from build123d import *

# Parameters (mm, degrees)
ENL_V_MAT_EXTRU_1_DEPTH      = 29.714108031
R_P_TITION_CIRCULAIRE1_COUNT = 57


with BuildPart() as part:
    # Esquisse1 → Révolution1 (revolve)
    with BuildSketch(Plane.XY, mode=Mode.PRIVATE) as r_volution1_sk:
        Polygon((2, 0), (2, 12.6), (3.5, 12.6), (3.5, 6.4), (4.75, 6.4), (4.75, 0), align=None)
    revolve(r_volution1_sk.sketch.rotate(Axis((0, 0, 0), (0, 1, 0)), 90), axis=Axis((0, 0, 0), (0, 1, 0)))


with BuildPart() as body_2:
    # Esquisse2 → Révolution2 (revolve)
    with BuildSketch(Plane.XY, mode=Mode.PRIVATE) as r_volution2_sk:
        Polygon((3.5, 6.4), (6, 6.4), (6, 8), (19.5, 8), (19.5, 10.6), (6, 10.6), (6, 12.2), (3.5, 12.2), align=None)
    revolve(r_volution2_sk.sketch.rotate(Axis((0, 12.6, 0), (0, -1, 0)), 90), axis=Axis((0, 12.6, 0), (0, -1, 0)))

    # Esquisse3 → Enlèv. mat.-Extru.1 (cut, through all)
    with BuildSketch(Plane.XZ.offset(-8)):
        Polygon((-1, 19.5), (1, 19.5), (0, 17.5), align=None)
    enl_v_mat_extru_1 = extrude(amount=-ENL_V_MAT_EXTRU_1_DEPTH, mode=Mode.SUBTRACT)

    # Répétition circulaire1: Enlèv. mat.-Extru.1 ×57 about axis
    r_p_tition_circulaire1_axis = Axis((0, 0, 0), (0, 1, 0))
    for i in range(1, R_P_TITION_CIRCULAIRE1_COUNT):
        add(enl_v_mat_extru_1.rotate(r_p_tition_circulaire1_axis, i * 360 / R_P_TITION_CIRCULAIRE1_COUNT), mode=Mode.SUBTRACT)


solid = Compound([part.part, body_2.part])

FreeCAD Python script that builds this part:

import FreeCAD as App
import Part
import Sketcher

V = App.Vector


def add_polygon(sketch, points):
    """Adds a closed chain of lines whose ends are joined by coincident constraints."""
    first, n = sketch.GeometryCount, len(points)
    for a, b in zip(points, points[1:] + points[:1]):
        sketch.addGeometry(Part.LineSegment(App.Vector(*a, 0), App.Vector(*b, 0)), False)
    for i in range(n):
        sketch.addConstraint(Sketcher.Constraint("Coincident", first + i, 2, first + (i + 1) % n, 1))

doc = App.newDocument("Part")
body = doc.addObject("PartDesign::Body", "Body")

# Sketch on XY plane
sketch1 = body.newObject("Sketcher::SketchObject", "Sketch")
sketch1.AttachmentSupport = (doc.getObject("XY_Plane"), [""])
sketch1.MapMode = "FlatFace"
add_polygon(sketch1, [(2, 12.6), (2, 0), (4.75, 0), (4.75, 6.4), (3.5, 6.4), (3.5, 12.6)])  # lines 0-5
sketch1.addConstraint([
    Sketcher.Constraint("Vertical", 0),
    Sketcher.Constraint("Horizontal", 1),
    Sketcher.Constraint("Vertical", 2),
    Sketcher.Constraint("Horizontal", 3),
    Sketcher.Constraint("Vertical", 4),
    Sketcher.Constraint("Horizontal", 5),
    Sketcher.Constraint("PointOnObject", 0, 2, -1),
    Sketcher.Constraint("DistanceX", 5, 2, 5, 1, 1.5),
    Sketcher.Constraint("DistanceY", 0, 2, 0, 1, 12.6),
    Sketcher.Constraint("DistanceY", 2, 1, 2, 2, 6.4),
    Sketcher.Constraint("DistanceX", -1, 1, 0, 2, 2.0),
    Sketcher.Constraint("DistanceX", 1, 1, 1, 2, 2.75),
])
revolution = body.newObject("PartDesign::Revolution", "Revolution")
revolution.Profile = sketch1
revolution.ReferenceAxis = (sketch1, ["V_Axis"])
revolution.Angle = 360
body2 = doc.addObject("PartDesign::Body", "Body001")

# Sketch on XY plane
sketch2 = body2.newObject("Sketcher::SketchObject", "Sketch001")
sketch2.AttachmentSupport = (doc.getObject("XY_Plane001"), [""])
sketch2.MapMode = "FlatFace"
add_polygon(sketch2, [(3.5, 6.4), (6, 6.4), (6, 8), (19.5, 8), (19.5, 10.6), (6, 10.6), (6, 12.2), (3.5, 12.2)])  # lines 0-7
sketch2.addConstraint([
    Sketcher.Constraint("Horizontal", 0),
    Sketcher.Constraint("Vertical", 1),
    Sketcher.Constraint("Horizontal", 2),
    Sketcher.Constraint("Vertical", 3),
    Sketcher.Constraint("Horizontal", 4),
    Sketcher.Constraint("Vertical", 5),
    Sketcher.Constraint("Horizontal", 6),
    Sketcher.Constraint("Vertical", 7),
    Sketcher.Constraint("Vertical", 1, 2, 4, 2),
    Sketcher.Constraint("Equal", 1, 5),
    Sketcher.Constraint("DistanceX", 0, 1, 0, 2, 2.5),
    Sketcher.Constraint("DistanceX", 2, 1, 2, 2, 13.5),
    Sketcher.Constraint("DistanceY", 1, 1, 1, 2, 1.6),
    Sketcher.Constraint("DistanceY", 3, 1, 3, 2, 2.6),
    Sketcher.Constraint("DistanceX", -1, 1, 0, 2, 6.0),
    Sketcher.Constraint("DistanceY", -1, 1, 1, 2, 8.0),
])
revolution2 = body2.newObject("PartDesign::Revolution", "Revolution001")
revolution2.Profile = sketch2
revolution2.ReferenceAxis = (sketch2, ["V_Axis"])
revolution2.Angle = 360

# Sketch on XZ plane
sketch3 = body2.newObject("Sketcher::SketchObject", "Sketch002")
sketch3.AttachmentSupport = (doc.getObject("XZ_Plane001"), [""])
sketch3.MapMode = "FlatFace"
sketch3.AttachmentOffset = App.Placement(V(0, 0, -8), App.Rotation())
add_polygon(sketch3, [(1, 19.5), (-1, 19.5), (0, 17.5)])  # lines 0-2
sketch3.addConstraint([
    Sketcher.Constraint("Horizontal", 0),
    Sketcher.Constraint("PointOnObject", 1, 2, -2),
    Sketcher.Constraint("Equal", 1, 2),
    Sketcher.Constraint("DistanceX", 0, 2, 0, 1, 2.0),
    Sketcher.Constraint("DistanceY", 1, 2, 0, 2, 2.0),
    Sketcher.Constraint("DistanceY", -1, 1, 0, 2, 19.5),
])
pocket1 = body2.newObject("PartDesign::Pocket", "Pocket")
pocket1.Profile = sketch3
pocket1.Type = "ThroughAll"
doc.recompute()

polarpattern = body2.newObject("PartDesign::PolarPattern", "PolarPattern")
polarpattern.Originals = [pocket1]
polarpattern.Axis = (doc.getObject("Y_Axis001"), [""])
polarpattern.Angle = 360
polarpattern.Occurrences = 57
body2.Tip = polarpattern

doc.recompute()
